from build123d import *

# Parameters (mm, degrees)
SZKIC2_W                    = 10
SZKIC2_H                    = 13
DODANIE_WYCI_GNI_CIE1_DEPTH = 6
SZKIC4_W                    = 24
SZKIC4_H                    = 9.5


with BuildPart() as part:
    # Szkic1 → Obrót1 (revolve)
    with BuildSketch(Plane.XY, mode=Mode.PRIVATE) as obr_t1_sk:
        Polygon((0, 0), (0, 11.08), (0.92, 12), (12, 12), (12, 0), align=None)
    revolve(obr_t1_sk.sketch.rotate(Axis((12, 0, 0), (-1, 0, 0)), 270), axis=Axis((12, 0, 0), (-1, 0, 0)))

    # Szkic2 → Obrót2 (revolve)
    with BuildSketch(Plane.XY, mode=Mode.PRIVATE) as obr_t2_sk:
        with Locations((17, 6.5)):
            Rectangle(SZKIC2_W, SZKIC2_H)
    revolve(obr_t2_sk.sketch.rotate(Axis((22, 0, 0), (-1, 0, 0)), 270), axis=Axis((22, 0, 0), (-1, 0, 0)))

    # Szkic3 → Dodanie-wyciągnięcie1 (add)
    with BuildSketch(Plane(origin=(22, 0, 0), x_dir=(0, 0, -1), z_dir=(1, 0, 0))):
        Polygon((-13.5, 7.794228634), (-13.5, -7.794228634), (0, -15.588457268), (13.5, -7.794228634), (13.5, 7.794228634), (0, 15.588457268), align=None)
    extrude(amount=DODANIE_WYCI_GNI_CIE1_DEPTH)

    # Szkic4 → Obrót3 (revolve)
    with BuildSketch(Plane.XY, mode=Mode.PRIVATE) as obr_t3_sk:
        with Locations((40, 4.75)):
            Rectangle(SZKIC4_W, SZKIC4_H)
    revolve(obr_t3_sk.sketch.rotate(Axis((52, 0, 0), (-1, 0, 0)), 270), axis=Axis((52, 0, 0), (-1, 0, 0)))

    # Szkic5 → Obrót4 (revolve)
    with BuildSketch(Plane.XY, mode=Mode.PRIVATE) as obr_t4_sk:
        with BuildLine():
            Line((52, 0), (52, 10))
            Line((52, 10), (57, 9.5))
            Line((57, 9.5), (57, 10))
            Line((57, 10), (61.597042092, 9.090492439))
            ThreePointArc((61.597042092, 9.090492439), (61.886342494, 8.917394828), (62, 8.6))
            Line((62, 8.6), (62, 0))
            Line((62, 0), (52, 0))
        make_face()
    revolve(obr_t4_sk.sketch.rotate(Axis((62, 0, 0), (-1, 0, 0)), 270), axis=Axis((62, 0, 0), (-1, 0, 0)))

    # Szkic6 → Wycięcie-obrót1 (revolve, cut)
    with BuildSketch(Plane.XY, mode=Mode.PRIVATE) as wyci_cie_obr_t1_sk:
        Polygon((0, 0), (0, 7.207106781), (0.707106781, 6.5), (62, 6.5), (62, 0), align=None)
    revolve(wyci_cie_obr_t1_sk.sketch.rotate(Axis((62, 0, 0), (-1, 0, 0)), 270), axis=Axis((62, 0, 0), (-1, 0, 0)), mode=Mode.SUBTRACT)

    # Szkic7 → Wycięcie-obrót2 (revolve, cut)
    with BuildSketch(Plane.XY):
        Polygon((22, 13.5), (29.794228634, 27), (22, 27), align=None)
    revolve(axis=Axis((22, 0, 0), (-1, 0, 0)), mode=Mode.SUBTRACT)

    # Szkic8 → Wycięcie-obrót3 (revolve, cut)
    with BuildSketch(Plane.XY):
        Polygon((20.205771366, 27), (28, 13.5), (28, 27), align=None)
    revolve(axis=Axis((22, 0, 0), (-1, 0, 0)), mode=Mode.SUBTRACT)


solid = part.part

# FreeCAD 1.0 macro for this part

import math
import FreeCAD as App
import Part
import Sketcher

V = App.Vector
Q = App.Units.Quantity

doc = App.newDocument("Part")
body = doc.addObject("PartDesign::Body", "Body")

# Sketch on XY plane
sketch1 = body.newObject("Sketcher::SketchObject", "Sketch")
sketch1.AttachmentSupport = (doc.getObject("XY_Plane"), [""])
sketch1.MapMode = "FlatFace"
sketch1.addGeometry([
    Part.LineSegment(V(0, 11.08, 0), V(0, 0, 0)),  # 0
    Part.LineSegment(V(0, 0, 0), V(12, 0, 0)),  # 1
    Part.LineSegment(V(12, 0, 0), V(12, 12, 0)),  # 2
    Part.LineSegment(V(12, 12, 0), V(0.92, 12, 0)),  # 3
    Part.LineSegment(V(0.92, 12, 0), V(0, 11.08, 0)),  # 4
], False)
sketch1.addConstraint([
    Sketcher.Constraint("Coincident", 0, 2, 1, 1),
    Sketcher.Constraint("Coincident", 1, 2, 2, 1),
    Sketcher.Constraint("Coincident", 2, 2, 3, 1),
    Sketcher.Constraint("Coincident", 3, 2, 4, 1),
    Sketcher.Constraint("Coincident", 4, 2, 0, 1),
    Sketcher.Constraint("Vertical", 0),
    Sketcher.Constraint("Horizontal", 1),
    Sketcher.Constraint("Vertical", 2),
    Sketcher.Constraint("Horizontal", 3),
    Sketcher.Constraint("Coincident", 0, 2, -1, 1),
    Sketcher.Constraint("Equal", 3, 0),
    Sketcher.Constraint("Equal", 1, 2),
    Sketcher.Constraint("DistanceX", 1, 1, 1, 2, Q("12 mm")),
    Sketcher.Constraint("DistanceX", 3, 2, 3, 1, Q("11.08 mm")),
])
revolution = body.newObject("PartDesign::Revolution", "Revolution")
revolution.Profile = sketch1
revolution.ReferenceAxis = (sketch1, ["H_Axis"])
revolution.Angle = 360

# Sketch on XY plane
sketch2 = body.newObject("Sketcher::SketchObject", "Sketch001")
sketch2.AttachmentSupport = (doc.getObject("XY_Plane"), [""])
sketch2.MapMode = "FlatFace"
sketch2.addGeometry([
    Part.LineSegment(V(12, 13, 0), V(12, 0, 0)),
    Part.LineSegment(V(12, 0, 0), V(22, 0, 0)),
    Part.LineSegment(V(22, 0, 0), V(22, 13, 0)),
    Part.LineSegment(V(22, 13, 0), V(12, 13, 0)),
], False)
sketch2.addConstraint([
    Sketcher.Constraint("Coincident", 0, 2, 1, 1),
    Sketcher.Constraint("Coincident", 1, 2, 2, 1),
    Sketcher.Constraint("Coincident", 2, 2, 3, 1),
    Sketcher.Constraint("Coincident", 3, 2, 0, 1),
    Sketcher.Constraint("Vertical", 0),
    Sketcher.Constraint("Horizontal", 1),
    Sketcher.Constraint("Vertical", 2),
    Sketcher.Constraint("Horizontal", 3),
    Sketcher.Constraint("PointOnObject", 0, 2, -1),
    Sketcher.Constraint("DistanceX", 1, 1, 1, 2, Q("10 mm")),
    Sketcher.Constraint("DistanceY", 0, 2, 0, 1, Q("13 mm")),
    Sketcher.Constraint("DistanceX", -1, 1, 0, 2, Q("12 mm")),
])
revolution2 = body.newObject("PartDesign::Revolution", "Revolution001")
revolution2.Profile = sketch2
revolution2.ReferenceAxis = (sketch2, ["H_Axis"])
revolution2.Angle = 360

# Sketch on YZ plane
sketch3 = body.newObject("Sketcher::SketchObject", "Sketch002")
sketch3.AttachmentSupport = (doc.getObject("YZ_Plane"), [""])
sketch3.MapMode = "FlatFace"
sketch3.AttachmentOffset = App.Placement(V(0, 0, 22), App.Rotation())
sketch3.addGeometry([
    Part.LineSegment(V(7.794229, 13.5, 0), V(-7.794229, 13.5, 0)),  # 0
    Part.LineSegment(V(-7.794229, 13.5, 0), V(-15.588457, 0, 0)),  # 1
    Part.LineSegment(V(-15.588457, 0, 0), V(-7.794229, -13.5, 0)),  # 2
    Part.LineSegment(V(-7.794229, -13.5, 0), V(7.794229, -13.5, 0)),  # 3
    Part.LineSegment(V(7.794229, -13.5, 0), V(15.588457, 0, 0)),  # 4
    Part.LineSegment(V(15.588457, 0, 0), V(7.794229, 13.5, 0)),  # 5
], False)
sketch3.addConstraint([
    Sketcher.Constraint("Coincident", 0, 2, 1, 1),
    Sketcher.Constraint("Coincident", 1, 2, 2, 1),
    Sketcher.Constraint("Coincident", 2, 2, 3, 1),
    Sketcher.Constraint("Coincident", 3, 2, 4, 1),
    Sketcher.Constraint("Coincident", 4, 2, 5, 1),
    Sketcher.Constraint("Coincident", 5, 2, 0, 1),
    Sketcher.Constraint("Horizontal", 0),
    Sketcher.Constraint("Horizontal", 3),
    Sketcher.Constraint("Symmetric", 0, 2, 3, 2, -1, 1),
    Sketcher.Constraint("Symmetric", 1, 2, 4, 2, -1, 1),
    Sketcher.Constraint("PointOnObject", 1, 2, -1),
    Sketcher.Constraint("Parallel", 2, 5),
    Sketcher.Constraint("Vertical", 0, 2, 2, 2),
    Sketcher.Constraint("Angle", 1, Q("-120 deg")),
    Sketcher.Constraint("DistanceY", 2, 2, 0, 2, Q("27 mm")),
    Sketcher.Constraint("DistanceX", 0, 2, 0, 1, Q("15.588457 mm")),
])
pad1 = body.newObject("PartDesign::Pad", "Pad")
pad1.Profile = sketch3
pad1.Length = 6

# Sketch on XY plane
sketch4 = body.newObject("Sketcher::SketchObject", "Sketch003")
sketch4.AttachmentSupport = (doc.getObject("XY_Plane"), [""])
sketch4.MapMode = "FlatFace"
sketch4.addGeometry([
    Part.LineSegment(V(28, 9.5, 0), V(28, 0, 0)),
    Part.LineSegment(V(28, 0, 0), V(52, 0, 0)),
    Part.LineSegment(V(52, 0, 0), V(52, 9.5, 0)),
    Part.LineSegment(V(52, 9.5, 0), V(28, 9.5, 0)),
], False)
sketch4.addConstraint([
    Sketcher.Constraint("Coincident", 0, 2, 1, 1),
    Sketcher.Constraint("Coincident", 1, 2, 2, 1),
    Sketcher.Constraint("Coincident", 2, 2, 3, 1),
    Sketcher.Constraint("Coincident", 3, 2, 0, 1),
    Sketcher.Constraint("Vertical", 0),
    Sketcher.Constraint("Horizontal", 1),
    Sketcher.Constraint("Vertical", 2),
    Sketcher.Constraint("Horizontal", 3),
    Sketcher.Constraint("PointOnObject", 0, 2, -1),
    Sketcher.Constraint("DistanceX", 1, 1, 1, 2, Q("24 mm")),
    Sketcher.Constraint("DistanceY", 0, 2, 0, 1, Q("9.5 mm")),
    Sketcher.Constraint("DistanceX", -1, 1, 0, 2, Q("28 mm")),
])
revolution3 = body.newObject("PartDesign::Revolution", "Revolution002")
revolution3.Profile = sketch4
revolution3.ReferenceAxis = (sketch4, ["H_Axis"])
revolution3.Angle = 360

# Sketch on XY plane
sketch5 = body.newObject("Sketcher::SketchObject", "Sketch004")
sketch5.AttachmentSupport = (doc.getObject("XY_Plane"), [""])
sketch5.MapMode = "FlatFace"
sketch5.addGeometry([
    Part.LineSegment(V(52, 10, 0), V(52, 0, 0)),  # 0
    Part.LineSegment(V(52, 0, 0), V(62, 0, 0)),  # 1
    Part.LineSegment(V(62, 0, 0), V(62, 8.6, 0)),  # 2
    Part.ArcOfCircle(Part.Circle(V(61.5, 8.6, 0), V(0, 0, 1), 0.5), math.radians(0), math.radians(78.808771)),  # 3
    Part.LineSegment(V(61.597042, 9.090492, 0), V(57, 10, 0)),  # 4
    Part.LineSegment(V(57, 10, 0), V(57, 9.5, 0)),  # 5
    Part.LineSegment(V(57, 9.5, 0), V(52, 10, 0)),  # 6
], False)
sketch5.addConstraint([
    Sketcher.Constraint("Coincident", 0, 2, 1, 1),
    Sketcher.Constraint("Coincident", 1, 2, 2, 1),
    Sketcher.Constraint("Tangent", 2, 2, 3, 1),
    Sketcher.Constraint("Tangent", 3, 2, 4, 1),
    Sketcher.Constraint("Coincident", 4, 2, 5, 1),
    Sketcher.Constraint("Coincident", 5, 2, 6, 1),
    Sketcher.Constraint("Coincident", 6, 2, 0, 1),
    Sketcher.Constraint("Vertical", 0),
    Sketcher.Constraint("Horizontal", 1),
    Sketcher.Constraint("Vertical", 2),
    Sketcher.Constraint("Vertical", 5),
    Sketcher.Constraint("PointOnObject", 0, 2, -1),
    Sketcher.Constraint("Horizontal", 4, 2, 6, 2),
    Sketcher.Constraint("Equal", 1, 0),
    Sketcher.Constraint("Radius", 3, Q("0.5 mm")),
    Sketcher.Constraint("DistanceX", 1, 1, 1, 2, Q("10 mm")),
    Sketcher.Constraint("DistanceY", 2, 1, 2, 2, Q("8.6 mm")),
    Sketcher.Constraint("DistanceY", 5, 2, 5, 1, Q("0.5 mm")),
    Sketcher.Constraint("DistanceX", -1, 1, 0, 2, Q("52 mm")),
    Sketcher.Constraint("DistanceX", -1, 1, 4, 2, Q("57 mm")),
])
revolution4 = body.newObject("PartDesign::Revolution", "Revolution003")
revolution4.Profile = sketch5
revolution4.ReferenceAxis = (sketch5, ["H_Axis"])
revolution4.Angle = 360

# Sketch on XY plane
sketch6 = body.newObject("Sketcher::SketchObject", "Sketch005")
sketch6.AttachmentSupport = (doc.getObject("XY_Plane"), [""])
sketch6.MapMode = "FlatFace"
sketch6.addGeometry([
    Part.LineSegment(V(0, 7.207107, 0), V(0, 0, 0)),  # 0
    Part.LineSegment(V(0, 0, 0), V(62, 0, 0)),  # 1
    Part.LineSegment(V(62, 0, 0), V(62, 6.5, 0)),  # 2
    Part.LineSegment(V(62, 6.5, 0), V(0.707107, 6.5, 0)),  # 3
    Part.LineSegment(V(0.707107, 6.5, 0), V(0, 7.207107, 0)),  # 4
], False)
sketch6.addConstraint([
    Sketcher.Constraint("Coincident", 0, 2, 1, 1),
    Sketcher.Constraint("Coincident", 1, 2, 2, 1),
    Sketcher.Constraint("Coincident", 2, 2, 3, 1),
    Sketcher.Constraint("Coincident", 3, 2, 4, 1),
    Sketcher.Constraint("Coincident", 4, 2, 0, 1),
    Sketcher.Constraint("Vertical", 0),
    Sketcher.Constraint("Horizontal", 1),
    Sketcher.Constraint("Vertical", 2),
    Sketcher.Constraint("Horizontal", 3),
    Sketcher.Constraint("Coincident", 0, 2, -1, 1),
    Sketcher.Constraint("DistanceX", 1, 1, 1, 2, Q("62 mm")),
    Sketcher.Constraint("Angle", 4, Q("135 deg")),
    Sketcher.Constraint("Distance", 4, Q("1 mm")),
    Sketcher.Constraint("DistanceY", 2, 1, 2, 2, Q("6.5 mm")),
])
groove = body.newObject("PartDesign::Groove", "Groove")
groove.Profile = sketch6
groove.ReferenceAxis = (sketch6, ["H_Axis"])
groove.Angle = 360

# Sketch on XY plane
sketch7 = body.newObject("Sketcher::SketchObject", "Sketch006")
sketch7.AttachmentSupport = (doc.getObject("XY_Plane"), [""])
sketch7.MapMode = "FlatFace"
sketch7.addGeometry([
    Part.LineSegment(V(22, 13.5, 0), V(29.794229, 27, 0)),
    Part.LineSegment(V(29.794229, 27, 0), V(22, 27, 0)),
    Part.LineSegment(V(22, 27, 0), V(22, 13.5, 0)),
], False)
sketch7.addConstraint([
    Sketcher.Constraint("Coincident", 0, 2, 1, 1),
    Sketcher.Constraint("Coincident", 1, 2, 2, 1),
    Sketcher.Constraint("Coincident", 2, 2, 0, 1),
    Sketcher.Constraint("Horizontal", 1),
    Sketcher.Constraint("Vertical", 2),
    Sketcher.Constraint("Angle", 0, Q("60 deg")),
    Sketcher.Constraint("DistanceY", 2, 2, 2, 1, Q("13.5 mm")),
    Sketcher.Constraint("DistanceY", -1, 1, 0, 2, Q("27 mm")),
    Sketcher.Constraint("DistanceX", -1, 1, 1, 2, Q("22 mm")),
])
groove2 = body.newObject("PartDesign::Groove", "Groove001")
groove2.Profile = sketch7
groove2.ReferenceAxis = (sketch7, ["H_Axis"])
groove2.Angle = 360

# Sketch on XY plane
sketch8 = body.newObject("Sketcher::SketchObject", "Sketch007")
sketch8.AttachmentSupport = (doc.getObject("XY_Plane"), [""])
sketch8.MapMode = "FlatFace"
sketch8.addGeometry([
    Part.LineSegment(V(20.205771, 27, 0), V(28, 13.5, 0)),
    Part.LineSegment(V(28, 13.5, 0), V(28, 27, 0)),
    Part.LineSegment(V(28, 27, 0), V(20.205771, 27, 0)),
], False)
sketch8.addConstraint([
    Sketcher.Constraint("Coincident", 0, 2, 1, 1),
    Sketcher.Constraint("Coincident", 1, 2, 2, 1),
    Sketcher.Constraint("Coincident", 2, 2, 0, 1),
    Sketcher.Constraint("Vertical", 1),
    Sketcher.Constraint("Horizontal", 2),
    Sketcher.Constraint("Angle", 0, Q("-60 deg")),
    Sketcher.Constraint("DistanceY", 1, 1, 1, 2, Q("13.5 mm")),
    Sketcher.Constraint("DistanceX", -1, 1, 0, 2, Q("28 mm")),
    Sketcher.Constraint("DistanceY", -1, 1, 1, 2, Q("27 mm")),
])
groove3 = body.newObject("PartDesign::Groove", "Groove002")
groove3.Profile = sketch8
groove3.ReferenceAxis = (sketch8, ["H_Axis"])
groove3.Angle = 360

doc.recompute()
